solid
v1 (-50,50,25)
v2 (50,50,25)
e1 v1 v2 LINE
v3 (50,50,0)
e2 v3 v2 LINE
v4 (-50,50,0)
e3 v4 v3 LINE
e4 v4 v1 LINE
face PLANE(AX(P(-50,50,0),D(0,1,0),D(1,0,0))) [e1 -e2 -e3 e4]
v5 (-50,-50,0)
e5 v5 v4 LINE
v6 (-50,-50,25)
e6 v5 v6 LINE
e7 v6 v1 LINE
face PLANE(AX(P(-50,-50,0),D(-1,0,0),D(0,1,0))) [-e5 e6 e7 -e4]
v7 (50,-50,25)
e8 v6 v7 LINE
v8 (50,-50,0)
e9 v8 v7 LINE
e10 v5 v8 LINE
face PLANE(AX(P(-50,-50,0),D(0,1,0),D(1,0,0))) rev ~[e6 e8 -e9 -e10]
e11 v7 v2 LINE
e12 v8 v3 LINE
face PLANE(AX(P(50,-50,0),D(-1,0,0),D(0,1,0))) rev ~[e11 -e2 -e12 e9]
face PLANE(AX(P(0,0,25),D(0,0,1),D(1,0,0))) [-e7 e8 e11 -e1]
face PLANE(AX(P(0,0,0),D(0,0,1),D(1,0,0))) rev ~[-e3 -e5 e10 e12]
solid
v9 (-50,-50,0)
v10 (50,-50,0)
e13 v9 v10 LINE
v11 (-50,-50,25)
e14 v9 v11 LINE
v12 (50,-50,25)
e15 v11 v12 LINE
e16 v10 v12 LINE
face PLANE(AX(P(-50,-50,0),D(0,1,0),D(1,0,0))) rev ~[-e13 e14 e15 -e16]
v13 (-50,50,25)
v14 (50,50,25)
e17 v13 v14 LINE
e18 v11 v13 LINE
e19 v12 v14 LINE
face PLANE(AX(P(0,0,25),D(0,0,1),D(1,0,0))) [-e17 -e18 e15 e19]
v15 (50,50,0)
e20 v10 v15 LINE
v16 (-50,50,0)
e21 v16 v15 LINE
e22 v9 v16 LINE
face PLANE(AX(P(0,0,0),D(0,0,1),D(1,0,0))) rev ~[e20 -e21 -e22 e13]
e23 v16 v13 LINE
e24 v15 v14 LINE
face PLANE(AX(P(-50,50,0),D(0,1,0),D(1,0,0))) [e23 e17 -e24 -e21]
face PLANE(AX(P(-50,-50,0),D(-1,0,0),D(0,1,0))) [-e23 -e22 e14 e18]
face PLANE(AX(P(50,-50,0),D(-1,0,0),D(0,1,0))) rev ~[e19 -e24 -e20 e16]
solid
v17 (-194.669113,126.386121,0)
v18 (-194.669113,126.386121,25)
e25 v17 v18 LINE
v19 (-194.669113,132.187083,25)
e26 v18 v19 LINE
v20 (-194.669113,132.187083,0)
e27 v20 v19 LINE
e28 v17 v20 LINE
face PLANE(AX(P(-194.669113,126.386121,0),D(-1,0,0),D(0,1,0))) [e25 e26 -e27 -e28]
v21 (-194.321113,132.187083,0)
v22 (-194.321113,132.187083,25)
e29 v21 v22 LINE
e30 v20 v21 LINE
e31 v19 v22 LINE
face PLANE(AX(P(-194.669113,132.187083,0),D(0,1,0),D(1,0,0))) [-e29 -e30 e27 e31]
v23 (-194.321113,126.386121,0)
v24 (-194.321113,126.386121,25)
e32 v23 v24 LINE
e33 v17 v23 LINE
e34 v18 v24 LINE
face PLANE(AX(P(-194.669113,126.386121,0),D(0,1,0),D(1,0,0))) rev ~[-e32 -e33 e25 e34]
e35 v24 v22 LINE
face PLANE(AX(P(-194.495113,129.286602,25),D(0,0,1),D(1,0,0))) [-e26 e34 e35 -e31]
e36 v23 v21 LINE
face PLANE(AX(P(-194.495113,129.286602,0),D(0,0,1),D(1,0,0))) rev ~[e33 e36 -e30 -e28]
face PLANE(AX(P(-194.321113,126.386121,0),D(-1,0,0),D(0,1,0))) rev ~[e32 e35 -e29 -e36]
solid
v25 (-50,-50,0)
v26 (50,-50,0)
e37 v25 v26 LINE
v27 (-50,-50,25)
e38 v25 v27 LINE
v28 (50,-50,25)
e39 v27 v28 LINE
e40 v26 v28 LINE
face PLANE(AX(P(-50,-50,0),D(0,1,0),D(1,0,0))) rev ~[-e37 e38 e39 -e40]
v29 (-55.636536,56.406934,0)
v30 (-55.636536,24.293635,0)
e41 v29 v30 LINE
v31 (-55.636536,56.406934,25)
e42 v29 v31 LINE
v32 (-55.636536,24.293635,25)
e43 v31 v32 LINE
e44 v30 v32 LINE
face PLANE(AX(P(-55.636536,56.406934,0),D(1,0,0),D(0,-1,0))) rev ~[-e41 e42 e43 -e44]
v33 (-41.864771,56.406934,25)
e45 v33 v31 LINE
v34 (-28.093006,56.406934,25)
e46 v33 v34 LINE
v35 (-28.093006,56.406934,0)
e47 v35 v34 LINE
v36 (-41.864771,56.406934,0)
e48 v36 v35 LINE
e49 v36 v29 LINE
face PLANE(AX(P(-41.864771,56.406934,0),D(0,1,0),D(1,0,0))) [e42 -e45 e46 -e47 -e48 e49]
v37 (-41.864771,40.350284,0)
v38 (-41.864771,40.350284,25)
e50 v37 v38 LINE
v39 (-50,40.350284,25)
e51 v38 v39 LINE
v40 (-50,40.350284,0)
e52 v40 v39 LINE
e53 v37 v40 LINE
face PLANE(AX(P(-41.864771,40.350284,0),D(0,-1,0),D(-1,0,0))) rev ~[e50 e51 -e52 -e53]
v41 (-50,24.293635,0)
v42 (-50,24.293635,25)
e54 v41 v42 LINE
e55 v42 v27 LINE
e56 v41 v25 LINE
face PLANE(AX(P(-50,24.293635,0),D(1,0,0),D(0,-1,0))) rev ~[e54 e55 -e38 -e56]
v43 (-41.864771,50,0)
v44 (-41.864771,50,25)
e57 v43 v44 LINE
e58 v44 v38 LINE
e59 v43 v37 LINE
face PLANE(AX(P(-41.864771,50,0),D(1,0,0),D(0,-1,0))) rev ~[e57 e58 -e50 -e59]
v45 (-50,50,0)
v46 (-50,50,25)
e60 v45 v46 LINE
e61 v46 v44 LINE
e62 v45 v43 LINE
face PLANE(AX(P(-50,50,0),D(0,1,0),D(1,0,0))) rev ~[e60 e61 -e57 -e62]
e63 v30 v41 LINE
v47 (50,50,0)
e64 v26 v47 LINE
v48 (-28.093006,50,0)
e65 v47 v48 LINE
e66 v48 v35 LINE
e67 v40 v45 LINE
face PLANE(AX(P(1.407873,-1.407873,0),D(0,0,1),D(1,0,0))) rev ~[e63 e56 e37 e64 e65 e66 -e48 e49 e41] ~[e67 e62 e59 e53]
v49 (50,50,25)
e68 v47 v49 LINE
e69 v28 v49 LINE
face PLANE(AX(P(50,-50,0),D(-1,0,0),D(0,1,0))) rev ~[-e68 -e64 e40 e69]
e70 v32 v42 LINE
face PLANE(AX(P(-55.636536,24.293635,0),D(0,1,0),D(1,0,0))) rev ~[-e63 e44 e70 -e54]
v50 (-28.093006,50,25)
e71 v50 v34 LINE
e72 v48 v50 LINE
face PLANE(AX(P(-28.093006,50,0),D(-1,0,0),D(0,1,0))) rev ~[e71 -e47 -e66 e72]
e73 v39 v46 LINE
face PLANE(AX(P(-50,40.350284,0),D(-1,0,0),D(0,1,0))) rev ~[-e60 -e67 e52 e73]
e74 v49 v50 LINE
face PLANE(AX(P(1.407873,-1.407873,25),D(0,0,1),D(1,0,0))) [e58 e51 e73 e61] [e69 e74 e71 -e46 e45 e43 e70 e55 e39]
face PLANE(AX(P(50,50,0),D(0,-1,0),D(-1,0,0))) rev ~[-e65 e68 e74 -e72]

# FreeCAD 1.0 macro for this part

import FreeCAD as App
import Part
import Sketcher

V = App.Vector

doc = App.newDocument("Part")
params = doc.addObject("Spreadsheet::Sheet", "Params")
for row, (alias, value) in enumerate([
    ("pad1_length", "25 mm"),
    ("sketch2_width", "100 mm"),
    ("pad2_length", "25 mm"),
    ("sketch3_width", "100 mm"),
    ("pad3_length", "25 mm"),
    ("sketch4_width", "100 mm"),
    ("pad4_length", "25 mm"),
], start=1):
    params.set(f"A{row}", alias)
    params.set(f"B{row}", "=" + value)
    params.setAlias(f"B{row}", alias)

body = doc.addObject("PartDesign::Body", "Body")

# Sketch on XY plane
sketch1 = doc.addObject("Sketcher::SketchObject", "Sketch")
body.addObject(sketch1)
sketch1.AttachmentSupport = (doc.XY_Plane, [""])
sketch1.MapMode = "FlatFace"
sketch1.addGeometry([
    Part.LineSegment(V(-194.67, 132.19, 0), V(-194.67, 126.39, 0)),
    Part.LineSegment(V(-194.67, 126.39, 0), V(-194.32, 126.39, 0)),
    Part.LineSegment(V(-194.32, 126.39, 0), V(-194.32, 132.19, 0)),
    Part.LineSegment(V(-194.32, 132.19, 0), V(-194.67, 132.19, 0)),
], False)
sketch1.addConstraint([
    Sketcher.Constraint("Coincident", 0, 2, 1, 1),
    Sketcher.Constraint("Coincident", 1, 2, 2, 1),
    Sketcher.Constraint("Coincident", 2, 2, 3, 1),
    Sketcher.Constraint("Coincident", 3, 2, 0, 1),
    Sketcher.Constraint("Vertical", 0),
    Sketcher.Constraint("Horizontal", 1),
    Sketcher.Constraint("Vertical", 2),
    Sketcher.Constraint("Horizontal", 3),
    Sketcher.Constraint("DistanceX", 1, 1, 1, 2, 0.348),
    Sketcher.Constraint("DistanceY", 0, 2, 0, 1, 5.800962),
    Sketcher.Constraint("DistanceY", -1, 1, 0, 2, 126.386121),
    Sketcher.Constraint("DistanceX", 0, 2, -1, 1, 194.669113),
])
pad1 = doc.addObject("PartDesign::Pad", "Pad")
body.addObject(pad1)
pad1.Profile = sketch1
pad1.setExpression("Length", "Params.pad1_length")
body2 = doc.addObject("PartDesign::Body", "Body001")

# Sketch on XY plane
sketch2 = doc.addObject("Sketcher::SketchObject", "Sketch001")
body2.addObject(sketch2)
sketch2.AttachmentSupport = (doc.getObject("XY_Plane001"), [""])
sketch2.MapMode = "FlatFace"
sketch2.addGeometry([
    Part.LineSegment(V(-50, 24, 0), V(-50, -50, 0)),  # 0
    Part.LineSegment(V(-50, -50, 0), V(50, -50, 0)),  # 1
    Part.LineSegment(V(50, -50, 0), V(50, 50, 0)),  # 2
    Part.LineSegment(V(50, 50, 0), V(-28, 50, 0)),  # 3
    Part.LineSegment(V(-28, 50, 0), V(-28, 56, 0)),  # 4
    Part.LineSegment(V(-28, 56, 0), V(-42, 56, 0)),  # 5
    Part.LineSegment(V(-42, 56, 0), V(-56, 56, 0)),  # 6
    Part.LineSegment(V(-56, 56, 0), V(-56, 24, 0)),  # 7
    Part.LineSegment(V(-56, 24, 0), V(-50, 24, 0)),  # 8
    Part.LineSegment(V(-42, 50, 0), V(-42, 40, 0)),  # 9
    Part.LineSegment(V(-42, 40, 0), V(-50, 40, 0)),  # 10
    Part.LineSegment(V(-50, 40, 0), V(-50, 50, 0)),  # 11
    Part.LineSegment(V(-50, 50, 0), V(-42, 50, 0)),  # 12
], False)
sketch2.addConstraint([
    Sketcher.Constraint("Coincident", 0, 2, 1, 1),
    Sketcher.Constraint("Coincident", 1, 2, 2, 1),
    Sketcher.Constraint("Coincident", 2, 2, 3, 1),
    Sketcher.Constraint("Coincident", 3, 2, 4, 1),
    Sketcher.Constraint("Coincident", 4, 2, 5, 1),
    Sketcher.Constraint("Coincident", 5, 2, 6, 1),
    Sketcher.Constraint("Coincident", 6, 2, 7, 1),
    Sketcher.Constraint("Coincident", 7, 2, 8, 1),
    Sketcher.Constraint("Coincident", 8, 2, 0, 1),
    Sketcher.Constraint("Coincident", 9, 2, 10, 1),
    Sketcher.Constraint("Coincident", 10, 2, 11, 1),
    Sketcher.Constraint("Coincident", 11, 2, 12, 1),
    Sketcher.Constraint("Coincident", 12, 2, 9, 1),
    Sketcher.Constraint("Vertical", 0),
    Sketcher.Constraint("Horizontal", 1),
    Sketcher.Constraint("Vertical", 2),
    Sketcher.Constraint("Horizontal", 3),
    Sketcher.Constraint("Vertical", 4),
    Sketcher.Constraint("Horizontal", 5),
    Sketcher.Constraint("Horizontal", 6),
    Sketcher.Constraint("Vertical", 7),
    Sketcher.Constraint("Horizontal", 8),
    Sketcher.Constraint("Vertical", 9),
    Sketcher.Constraint("Horizontal", 10),
    Sketcher.Constraint("Vertical", 11),
    Sketcher.Constraint("Horizontal", 12),
    Sketcher.Constraint("Symmetric", 0, 2, 2, 2, -1, 1),
    Sketcher.Constraint("Symmetric", 1, 2, 11, 2, -1, 1),
    Sketcher.Constraint("Vertical", 5, 2, 9, 2),
    Sketcher.Constraint("Equal", 5, 6),
    Sketcher.Constraint("Equal", 1, 2),
    Sketcher.Constraint("DistanceX", 1, 1, 1, 2, 100.0),
    Sketcher.Constraint("DistanceY", 7, 2, 7, 1, 32.113299),
    Sketcher.Constraint("DistanceX", 10, 2, 10, 1, 8.135229),
    Sketcher.Constraint("DistanceX", 3, 2, 3, 1, 78.093006),
    Sketcher.Constraint("DistanceY", 0, 2, 0, 1, 74.293635),
    Sketcher.Constraint("DistanceY", 9, 2, 9, 1, 9.649716),
])
sketch2.setExpression("Constraints[31]", "Params.sketch2_width")
pad2 = doc.addObject("PartDesign::Pad", "Pad001")
body2.addObject(pad2)
pad2.Profile = sketch2
pad2.setExpression("Length", "Params.pad2_length")
body3 = doc.addObject("PartDesign::Body", "Body002")

# Sketch on XY plane
sketch3 = doc.addObject("Sketcher::SketchObject", "Sketch002")
body3.addObject(sketch3)
sketch3.AttachmentSupport = (doc.getObject("XY_Plane002"), [""])
sketch3.MapMode = "FlatFace"
sketch3.addGeometry([
    Part.LineSegment(V(-50, 50, 0), V(-50, -50, 0)),
    Part.LineSegment(V(-50, -50, 0), V(50, -50, 0)),
    Part.LineSegment(V(50, -50, 0), V(50, 50, 0)),
    Part.LineSegment(V(50, 50, 0), V(-50, 50, 0)),
], False)
sketch3.addConstraint([
    Sketcher.Constraint("Coincident", 0, 2, 1, 1),
    Sketcher.Constraint("Coincident", 1, 2, 2, 1),
    Sketcher.Constraint("Coincident", 2, 2, 3, 1),
    Sketcher.Constraint("Coincident", 3, 2, 0, 1),
    Sketcher.Constraint("Vertical", 0),
    Sketcher.Constraint("Horizontal", 1),
    Sketcher.Constraint("Vertical", 2),
    Sketcher.Constraint("Horizontal", 3),
    Sketcher.Constraint("Symmetric", 0, 2, 2, 2, -1, 1),
    Sketcher.Constraint("Equal", 3, 0),
    Sketcher.Constraint("DistanceX", 1, 1, 1, 2, 100.0),
])
sketch3.setExpression("Constraints[10]", "Params.sketch3_width")
pad3 = doc.addObject("PartDesign::Pad", "Pad002")
body3.addObject(pad3)
pad3.Profile = sketch3
pad3.setExpression("Length", "Params.pad3_length")
body4 = doc.addObject("PartDesign::Body", "Body003")

# Sketch on XY plane
sketch4 = doc.addObject("Sketcher::SketchObject", "Sketch003")
body4.addObject(sketch4)
sketch4.AttachmentSupport = (doc.getObject("XY_Plane003"), [""])
sketch4.MapMode = "FlatFace"
sketch4.addGeometry([
    Part.LineSegment(V(-50, 50, 0), V(-50, -50, 0)),
    Part.LineSegment(V(-50, -50, 0), V(50, -50, 0)),
    Part.LineSegment(V(50, -50, 0), V(50, 50, 0)),
    Part.LineSegment(V(50, 50, 0), V(-50, 50, 0)),
], False)
sketch4.addConstraint([
    Sketcher.Constraint("Coincident", 0, 2, 1, 1),
    Sketcher.Constraint("Coincident", 1, 2, 2, 1),
    Sketcher.Constraint("Coincident", 2, 2, 3, 1),
    Sketcher.Constraint("Coincident", 3, 2, 0, 1),
    Sketcher.Constraint("Vertical", 0),
    Sketcher.Constraint("Horizontal", 1),
    Sketcher.Constraint("Vertical", 2),
    Sketcher.Constraint("Horizontal", 3),
    Sketcher.Constraint("Symmetric", 0, 2, 2, 2, -1, 1),
    Sketcher.Constraint("Equal", 3, 0),
    Sketcher.Constraint("DistanceX", 1, 1, 1, 2, 100.0),
])
sketch4.setExpression("Constraints[10]", "Params.sketch4_width")
pad4 = doc.addObject("PartDesign::Pad", "Pad003")
body4.addObject(pad4)
pad4.Profile = sketch4
pad4.setExpression("Length", "Params.pad4_length")

doc.recompute()
